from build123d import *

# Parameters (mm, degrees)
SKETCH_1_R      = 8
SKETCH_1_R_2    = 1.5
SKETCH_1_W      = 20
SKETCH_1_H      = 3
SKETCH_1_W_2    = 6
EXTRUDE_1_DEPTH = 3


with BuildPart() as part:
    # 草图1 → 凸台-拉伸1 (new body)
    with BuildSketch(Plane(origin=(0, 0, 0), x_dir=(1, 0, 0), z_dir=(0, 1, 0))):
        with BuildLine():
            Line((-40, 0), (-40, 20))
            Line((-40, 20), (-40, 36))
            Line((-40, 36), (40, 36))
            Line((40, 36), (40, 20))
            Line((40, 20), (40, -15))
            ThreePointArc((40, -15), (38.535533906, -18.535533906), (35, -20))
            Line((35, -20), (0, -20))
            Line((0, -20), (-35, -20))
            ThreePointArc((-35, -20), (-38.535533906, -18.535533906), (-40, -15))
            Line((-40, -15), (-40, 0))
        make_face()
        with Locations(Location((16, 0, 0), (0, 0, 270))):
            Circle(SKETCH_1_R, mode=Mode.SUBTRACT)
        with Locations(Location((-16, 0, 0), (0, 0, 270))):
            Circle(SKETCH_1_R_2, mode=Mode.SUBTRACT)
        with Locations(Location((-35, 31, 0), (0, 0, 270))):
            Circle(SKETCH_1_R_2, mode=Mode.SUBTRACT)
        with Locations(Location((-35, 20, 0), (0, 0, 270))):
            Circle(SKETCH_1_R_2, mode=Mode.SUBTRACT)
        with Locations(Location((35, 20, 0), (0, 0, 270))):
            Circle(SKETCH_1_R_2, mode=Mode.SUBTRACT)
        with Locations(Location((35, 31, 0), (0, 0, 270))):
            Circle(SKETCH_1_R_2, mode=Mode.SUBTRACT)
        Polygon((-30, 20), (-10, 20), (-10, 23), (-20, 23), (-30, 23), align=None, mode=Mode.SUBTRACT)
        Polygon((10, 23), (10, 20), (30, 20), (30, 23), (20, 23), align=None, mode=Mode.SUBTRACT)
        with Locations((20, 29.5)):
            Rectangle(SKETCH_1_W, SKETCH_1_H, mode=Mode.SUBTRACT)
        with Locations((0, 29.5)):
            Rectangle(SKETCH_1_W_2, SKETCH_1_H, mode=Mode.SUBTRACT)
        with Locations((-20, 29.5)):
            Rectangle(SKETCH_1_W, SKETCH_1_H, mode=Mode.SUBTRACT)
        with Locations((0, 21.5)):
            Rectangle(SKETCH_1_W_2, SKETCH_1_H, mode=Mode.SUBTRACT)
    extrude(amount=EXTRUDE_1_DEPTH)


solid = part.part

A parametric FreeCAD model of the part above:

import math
import FreeCAD as App
import Part
import Sketcher

V = App.Vector


def add_polygon(sketch, points):
    """Adds a closed chain of lines whose ends are joined by coincident constraints."""
    first, n = sketch.GeometryCount, len(points)
    for a, b in zip(points, points[1:] + points[:1]):
        sketch.addGeometry(Part.LineSegment(App.Vector(*a, 0), App.Vector(*b, 0)), False)
    for i in range(n):
        sketch.addConstraint(Sketcher.Constraint("Coincident", first + i, 2, first + (i + 1) % n, 1))

doc = App.newDocument("Part")
body = doc.addObject("PartDesign::Body", "Body")

sketch1 = doc.addObject("Sketcher::SketchObject", "Sketch")
body.addObject(sketch1)
sketch1.AttachmentSupport = (doc.XZ_Plane, [""])
sketch1.MapMode = "FlatFace"
sketch1.addGeometry(Part.LineSegment(V(40, -36, 0), V(-40, -36, 0)), False)
sketch1.addGeometry(Part.LineSegment(V(-40, -36, 0), V(-40, 15, 0)), False)
sketch1.addGeometry(Part.ArcOfCircle(Part.Circle(V(-35, 15, 0), V(0, 0, 1), 5), math.radians(90), math.radians(180)), False)
sketch1.addGeometry(Part.LineSegment(V(-35, 20, 0), V(35, 20, 0)), False)
sketch1.addGeometry(Part.ArcOfCircle(Part.Circle(V(35, 15, 0), V(0, 0, 1), 5), math.radians(0), math.radians(90)), False)
sketch1.addGeometry(Part.LineSegment(V(40, 15, 0), V(40, -36, 0)), False)
sketch1.addGeometry(Part.Circle(V(16, 0, 0), V(0, 0, 1), 8), False)
sketch1.addGeometry(Part.Circle(V(-16, 0, 0), V(0, 0, 1), 1.5), False)
sketch1.addGeometry(Part.Circle(V(35, -20, 0), V(0, 0, 1), 1.5), False)
add_polygon(sketch1, [(10, -23), (30, -23), (30, -20), (10, -20)])
sketch1.addGeometry(Part.Circle(V(35, -31, 0), V(0, 0, 1), 1.5), False)
add_polygon(sketch1, [(10, -28), (10, -31), (30, -31), (30, -28)])
add_polygon(sketch1, [(-3, -20), (-3, -23), (3, -23), (3, -20)])
add_polygon(sketch1, [(-30, -20), (-30, -23), (-10, -23), (-10, -20)])
sketch1.addGeometry(Part.Circle(V(-35, -20, 0), V(0, 0, 1), 1.5), False)
add_polygon(sketch1, [(-3, -28), (-3, -31), (3, -31), (3, -28)])
add_polygon(sketch1, [(-30, -28), (-30, -31), (-10, -31), (-10, -28)])
sketch1.addGeometry(Part.Circle(V(-35, -31, 0), V(0, 0, 1), 1.5), False)
sketch1.addConstraint(Sketcher.Constraint("Coincident", 0, 2, 1, 1))
sketch1.addConstraint(Sketcher.Constraint("Tangent", 1, 2, 2, 2))
sketch1.addConstraint(Sketcher.Constraint("Tangent", 2, 1, 3, 1))
sketch1.addConstraint(Sketcher.Constraint("Tangent", 3, 2, 4, 2))
sketch1.addConstraint(Sketcher.Constraint("Tangent", 4, 1, 5, 1))
sketch1.addConstraint(Sketcher.Constraint("Coincident", 5, 2, 0, 1))
sketch1.addConstraint(Sketcher.Constraint("Horizontal", 0))
sketch1.addConstraint(Sketcher.Constraint("Vertical", 1))
sketch1.addConstraint(Sketcher.Constraint("Horizontal", 3))
sketch1.addConstraint(Sketcher.Constraint("Vertical", 5))
sketch1.addConstraint(Sketcher.Constraint("Horizontal", 9))
sketch1.addConstraint(Sketcher.Constraint("Vertical", 10))
sketch1.addConstraint(Sketcher.Constraint("Horizontal", 11))
sketch1.addConstraint(Sketcher.Constraint("Vertical", 12))
sketch1.addConstraint(Sketcher.Constraint("Vertical", 14))
sketch1.addConstraint(Sketcher.Constraint("Horizontal", 15))
sketch1.addConstraint(Sketcher.Constraint("Vertical", 16))
sketch1.addConstraint(Sketcher.Constraint("Horizontal", 17))
sketch1.addConstraint(Sketcher.Constraint("Vertical", 18))
sketch1.addConstraint(Sketcher.Constraint("Horizontal", 19))
sketch1.addConstraint(Sketcher.Constraint("Vertical", 20))
sketch1.addConstraint(Sketcher.Constraint("Horizontal", 21))
sketch1.addConstraint(Sketcher.Constraint("Vertical", 22))
sketch1.addConstraint(Sketcher.Constraint("Horizontal", 23))
sketch1.addConstraint(Sketcher.Constraint("Vertical", 24))
sketch1.addConstraint(Sketcher.Constraint("Horizontal", 25))
sketch1.addConstraint(Sketcher.Constraint("Vertical", 27))
sketch1.addConstraint(Sketcher.Constraint("Horizontal", 28))
sketch1.addConstraint(Sketcher.Constraint("Vertical", 29))
sketch1.addConstraint(Sketcher.Constraint("Horizontal", 30))
sketch1.addConstraint(Sketcher.Constraint("Vertical", 31))
sketch1.addConstraint(Sketcher.Constraint("Horizontal", 32))
sketch1.addConstraint(Sketcher.Constraint("Vertical", 33))
sketch1.addConstraint(Sketcher.Constraint("Horizontal", 34))
sketch1.addConstraint(Sketcher.Constraint("Equal", 2, 4))
sketch1.addConstraint(Sketcher.Constraint("Equal", 7, 8))
sketch1.addConstraint(Sketcher.Constraint("Equal", 8, 13))
sketch1.addConstraint(Sketcher.Constraint("Equal", 13, 26))
sketch1.addConstraint(Sketcher.Constraint("Equal", 26, 35))
sketch1.addConstraint(Sketcher.Constraint("Symmetric", 6, 3, 7, 3, -1, 1))
sketch1.addConstraint(Sketcher.Constraint("Symmetric", 8, 3, 26, 3, -2))
sketch1.addConstraint(Sketcher.Constraint("Symmetric", 13, 3, 35, 3, -2))
sketch1.addConstraint(Sketcher.Constraint("Symmetric", 9, 2, 22, 2, -2))
sketch1.addConstraint(Sketcher.Constraint("Symmetric", 11, 2, 24, 2, -2))
sketch1.addConstraint(Sketcher.Constraint("Symmetric", 15, 2, 31, 2, -2))
sketch1.addConstraint(Sketcher.Constraint("Symmetric", 17, 2, 33, 2, -2))
sketch1.addConstraint(Sketcher.Constraint("PointOnObject", 6, 3, -1))
sketch1.addConstraint(Sketcher.Constraint("Horizontal", 26, 3, 10, 2))
sketch1.addConstraint(Sketcher.Constraint("Horizontal", 35, 3, 14, 2))
sketch1.addConstraint(Sketcher.Constraint("Horizontal", 12, 2, 18, 2))
sketch1.addConstraint(Sketcher.Constraint("Horizontal", 11, 2, 20, 2))
sketch1.addConstraint(Sketcher.Constraint("Horizontal", 15, 2, 27, 2))
sketch1.addConstraint(Sketcher.Constraint("Horizontal", 17, 2, 29, 2))
sketch1.addConstraint(Sketcher.Constraint("Vertical", 4, 3, 8, 3))
sketch1.addConstraint(Sketcher.Constraint("Vertical", 8, 3, 13, 3))
sketch1.addConstraint(Sketcher.Constraint("Vertical", 2, 3, 26, 3))
sketch1.addConstraint(Sketcher.Constraint("Vertical", 12, 2, 14, 2))
sketch1.addConstraint(Sketcher.Constraint("Vertical", 10, 2, 15, 2))
sketch1.addConstraint(Sketcher.Constraint("Vertical", 21, 2, 27, 2))
sketch1.addConstraint(Sketcher.Constraint("Vertical", 20, 2, 28, 2))
sketch1.addConstraint(Sketcher.Constraint("Equal", 12, 14))
sketch1.addConstraint(Sketcher.Constraint("Diameter", 6, 16.0))
sketch1.addConstraint(Sketcher.Constraint("Diameter", 7, 3.0))
sketch1.addConstraint(Sketcher.Constraint("Radius", 2, 5.0))
sketch1.addConstraint(Sketcher.Constraint("DistanceX", 0, 2, 0, 1, 80.0))
sketch1.addConstraint(Sketcher.Constraint("DistanceX", 9, 1, 9, 2, 20.0))
sketch1.addConstraint(Sketcher.Constraint("DistanceX", 19, 1, 19, 2, 6.0))
sketch1.addConstraint(Sketcher.Constraint("DistanceY", 1, 1, 1, 2, 51.0))
sketch1.addConstraint(Sketcher.Constraint("DistanceY", 10, 1, 10, 2, 3.0))
sketch1.addConstraint(Sketcher.Constraint("DistanceY", -1, 1, 2, 3, 15.0))
sketch1.addConstraint(Sketcher.Constraint("DistanceX", -1, 1, 6, 3, 16.0))
sketch1.addConstraint(Sketcher.Constraint("DistanceY", 8, 3, -1, 1, 20.0))
sketch1.addConstraint(Sketcher.Constraint("DistanceY", 13, 3, -1, 1, 31.0))
sketch1.addConstraint(Sketcher.Constraint("DistanceX", -1, 1, 9, 2, 30.0))
sketch1.addConstraint(Sketcher.Constraint("DistanceX", 18, 2, -1, 1, 3.0))
pad1 = doc.addObject("PartDesign::Pad", "Pad")
body.addObject(pad1)
pad1.Profile = sketch1
pad1.Length = 3
pad1.Reversed = True

doc.recompute()
